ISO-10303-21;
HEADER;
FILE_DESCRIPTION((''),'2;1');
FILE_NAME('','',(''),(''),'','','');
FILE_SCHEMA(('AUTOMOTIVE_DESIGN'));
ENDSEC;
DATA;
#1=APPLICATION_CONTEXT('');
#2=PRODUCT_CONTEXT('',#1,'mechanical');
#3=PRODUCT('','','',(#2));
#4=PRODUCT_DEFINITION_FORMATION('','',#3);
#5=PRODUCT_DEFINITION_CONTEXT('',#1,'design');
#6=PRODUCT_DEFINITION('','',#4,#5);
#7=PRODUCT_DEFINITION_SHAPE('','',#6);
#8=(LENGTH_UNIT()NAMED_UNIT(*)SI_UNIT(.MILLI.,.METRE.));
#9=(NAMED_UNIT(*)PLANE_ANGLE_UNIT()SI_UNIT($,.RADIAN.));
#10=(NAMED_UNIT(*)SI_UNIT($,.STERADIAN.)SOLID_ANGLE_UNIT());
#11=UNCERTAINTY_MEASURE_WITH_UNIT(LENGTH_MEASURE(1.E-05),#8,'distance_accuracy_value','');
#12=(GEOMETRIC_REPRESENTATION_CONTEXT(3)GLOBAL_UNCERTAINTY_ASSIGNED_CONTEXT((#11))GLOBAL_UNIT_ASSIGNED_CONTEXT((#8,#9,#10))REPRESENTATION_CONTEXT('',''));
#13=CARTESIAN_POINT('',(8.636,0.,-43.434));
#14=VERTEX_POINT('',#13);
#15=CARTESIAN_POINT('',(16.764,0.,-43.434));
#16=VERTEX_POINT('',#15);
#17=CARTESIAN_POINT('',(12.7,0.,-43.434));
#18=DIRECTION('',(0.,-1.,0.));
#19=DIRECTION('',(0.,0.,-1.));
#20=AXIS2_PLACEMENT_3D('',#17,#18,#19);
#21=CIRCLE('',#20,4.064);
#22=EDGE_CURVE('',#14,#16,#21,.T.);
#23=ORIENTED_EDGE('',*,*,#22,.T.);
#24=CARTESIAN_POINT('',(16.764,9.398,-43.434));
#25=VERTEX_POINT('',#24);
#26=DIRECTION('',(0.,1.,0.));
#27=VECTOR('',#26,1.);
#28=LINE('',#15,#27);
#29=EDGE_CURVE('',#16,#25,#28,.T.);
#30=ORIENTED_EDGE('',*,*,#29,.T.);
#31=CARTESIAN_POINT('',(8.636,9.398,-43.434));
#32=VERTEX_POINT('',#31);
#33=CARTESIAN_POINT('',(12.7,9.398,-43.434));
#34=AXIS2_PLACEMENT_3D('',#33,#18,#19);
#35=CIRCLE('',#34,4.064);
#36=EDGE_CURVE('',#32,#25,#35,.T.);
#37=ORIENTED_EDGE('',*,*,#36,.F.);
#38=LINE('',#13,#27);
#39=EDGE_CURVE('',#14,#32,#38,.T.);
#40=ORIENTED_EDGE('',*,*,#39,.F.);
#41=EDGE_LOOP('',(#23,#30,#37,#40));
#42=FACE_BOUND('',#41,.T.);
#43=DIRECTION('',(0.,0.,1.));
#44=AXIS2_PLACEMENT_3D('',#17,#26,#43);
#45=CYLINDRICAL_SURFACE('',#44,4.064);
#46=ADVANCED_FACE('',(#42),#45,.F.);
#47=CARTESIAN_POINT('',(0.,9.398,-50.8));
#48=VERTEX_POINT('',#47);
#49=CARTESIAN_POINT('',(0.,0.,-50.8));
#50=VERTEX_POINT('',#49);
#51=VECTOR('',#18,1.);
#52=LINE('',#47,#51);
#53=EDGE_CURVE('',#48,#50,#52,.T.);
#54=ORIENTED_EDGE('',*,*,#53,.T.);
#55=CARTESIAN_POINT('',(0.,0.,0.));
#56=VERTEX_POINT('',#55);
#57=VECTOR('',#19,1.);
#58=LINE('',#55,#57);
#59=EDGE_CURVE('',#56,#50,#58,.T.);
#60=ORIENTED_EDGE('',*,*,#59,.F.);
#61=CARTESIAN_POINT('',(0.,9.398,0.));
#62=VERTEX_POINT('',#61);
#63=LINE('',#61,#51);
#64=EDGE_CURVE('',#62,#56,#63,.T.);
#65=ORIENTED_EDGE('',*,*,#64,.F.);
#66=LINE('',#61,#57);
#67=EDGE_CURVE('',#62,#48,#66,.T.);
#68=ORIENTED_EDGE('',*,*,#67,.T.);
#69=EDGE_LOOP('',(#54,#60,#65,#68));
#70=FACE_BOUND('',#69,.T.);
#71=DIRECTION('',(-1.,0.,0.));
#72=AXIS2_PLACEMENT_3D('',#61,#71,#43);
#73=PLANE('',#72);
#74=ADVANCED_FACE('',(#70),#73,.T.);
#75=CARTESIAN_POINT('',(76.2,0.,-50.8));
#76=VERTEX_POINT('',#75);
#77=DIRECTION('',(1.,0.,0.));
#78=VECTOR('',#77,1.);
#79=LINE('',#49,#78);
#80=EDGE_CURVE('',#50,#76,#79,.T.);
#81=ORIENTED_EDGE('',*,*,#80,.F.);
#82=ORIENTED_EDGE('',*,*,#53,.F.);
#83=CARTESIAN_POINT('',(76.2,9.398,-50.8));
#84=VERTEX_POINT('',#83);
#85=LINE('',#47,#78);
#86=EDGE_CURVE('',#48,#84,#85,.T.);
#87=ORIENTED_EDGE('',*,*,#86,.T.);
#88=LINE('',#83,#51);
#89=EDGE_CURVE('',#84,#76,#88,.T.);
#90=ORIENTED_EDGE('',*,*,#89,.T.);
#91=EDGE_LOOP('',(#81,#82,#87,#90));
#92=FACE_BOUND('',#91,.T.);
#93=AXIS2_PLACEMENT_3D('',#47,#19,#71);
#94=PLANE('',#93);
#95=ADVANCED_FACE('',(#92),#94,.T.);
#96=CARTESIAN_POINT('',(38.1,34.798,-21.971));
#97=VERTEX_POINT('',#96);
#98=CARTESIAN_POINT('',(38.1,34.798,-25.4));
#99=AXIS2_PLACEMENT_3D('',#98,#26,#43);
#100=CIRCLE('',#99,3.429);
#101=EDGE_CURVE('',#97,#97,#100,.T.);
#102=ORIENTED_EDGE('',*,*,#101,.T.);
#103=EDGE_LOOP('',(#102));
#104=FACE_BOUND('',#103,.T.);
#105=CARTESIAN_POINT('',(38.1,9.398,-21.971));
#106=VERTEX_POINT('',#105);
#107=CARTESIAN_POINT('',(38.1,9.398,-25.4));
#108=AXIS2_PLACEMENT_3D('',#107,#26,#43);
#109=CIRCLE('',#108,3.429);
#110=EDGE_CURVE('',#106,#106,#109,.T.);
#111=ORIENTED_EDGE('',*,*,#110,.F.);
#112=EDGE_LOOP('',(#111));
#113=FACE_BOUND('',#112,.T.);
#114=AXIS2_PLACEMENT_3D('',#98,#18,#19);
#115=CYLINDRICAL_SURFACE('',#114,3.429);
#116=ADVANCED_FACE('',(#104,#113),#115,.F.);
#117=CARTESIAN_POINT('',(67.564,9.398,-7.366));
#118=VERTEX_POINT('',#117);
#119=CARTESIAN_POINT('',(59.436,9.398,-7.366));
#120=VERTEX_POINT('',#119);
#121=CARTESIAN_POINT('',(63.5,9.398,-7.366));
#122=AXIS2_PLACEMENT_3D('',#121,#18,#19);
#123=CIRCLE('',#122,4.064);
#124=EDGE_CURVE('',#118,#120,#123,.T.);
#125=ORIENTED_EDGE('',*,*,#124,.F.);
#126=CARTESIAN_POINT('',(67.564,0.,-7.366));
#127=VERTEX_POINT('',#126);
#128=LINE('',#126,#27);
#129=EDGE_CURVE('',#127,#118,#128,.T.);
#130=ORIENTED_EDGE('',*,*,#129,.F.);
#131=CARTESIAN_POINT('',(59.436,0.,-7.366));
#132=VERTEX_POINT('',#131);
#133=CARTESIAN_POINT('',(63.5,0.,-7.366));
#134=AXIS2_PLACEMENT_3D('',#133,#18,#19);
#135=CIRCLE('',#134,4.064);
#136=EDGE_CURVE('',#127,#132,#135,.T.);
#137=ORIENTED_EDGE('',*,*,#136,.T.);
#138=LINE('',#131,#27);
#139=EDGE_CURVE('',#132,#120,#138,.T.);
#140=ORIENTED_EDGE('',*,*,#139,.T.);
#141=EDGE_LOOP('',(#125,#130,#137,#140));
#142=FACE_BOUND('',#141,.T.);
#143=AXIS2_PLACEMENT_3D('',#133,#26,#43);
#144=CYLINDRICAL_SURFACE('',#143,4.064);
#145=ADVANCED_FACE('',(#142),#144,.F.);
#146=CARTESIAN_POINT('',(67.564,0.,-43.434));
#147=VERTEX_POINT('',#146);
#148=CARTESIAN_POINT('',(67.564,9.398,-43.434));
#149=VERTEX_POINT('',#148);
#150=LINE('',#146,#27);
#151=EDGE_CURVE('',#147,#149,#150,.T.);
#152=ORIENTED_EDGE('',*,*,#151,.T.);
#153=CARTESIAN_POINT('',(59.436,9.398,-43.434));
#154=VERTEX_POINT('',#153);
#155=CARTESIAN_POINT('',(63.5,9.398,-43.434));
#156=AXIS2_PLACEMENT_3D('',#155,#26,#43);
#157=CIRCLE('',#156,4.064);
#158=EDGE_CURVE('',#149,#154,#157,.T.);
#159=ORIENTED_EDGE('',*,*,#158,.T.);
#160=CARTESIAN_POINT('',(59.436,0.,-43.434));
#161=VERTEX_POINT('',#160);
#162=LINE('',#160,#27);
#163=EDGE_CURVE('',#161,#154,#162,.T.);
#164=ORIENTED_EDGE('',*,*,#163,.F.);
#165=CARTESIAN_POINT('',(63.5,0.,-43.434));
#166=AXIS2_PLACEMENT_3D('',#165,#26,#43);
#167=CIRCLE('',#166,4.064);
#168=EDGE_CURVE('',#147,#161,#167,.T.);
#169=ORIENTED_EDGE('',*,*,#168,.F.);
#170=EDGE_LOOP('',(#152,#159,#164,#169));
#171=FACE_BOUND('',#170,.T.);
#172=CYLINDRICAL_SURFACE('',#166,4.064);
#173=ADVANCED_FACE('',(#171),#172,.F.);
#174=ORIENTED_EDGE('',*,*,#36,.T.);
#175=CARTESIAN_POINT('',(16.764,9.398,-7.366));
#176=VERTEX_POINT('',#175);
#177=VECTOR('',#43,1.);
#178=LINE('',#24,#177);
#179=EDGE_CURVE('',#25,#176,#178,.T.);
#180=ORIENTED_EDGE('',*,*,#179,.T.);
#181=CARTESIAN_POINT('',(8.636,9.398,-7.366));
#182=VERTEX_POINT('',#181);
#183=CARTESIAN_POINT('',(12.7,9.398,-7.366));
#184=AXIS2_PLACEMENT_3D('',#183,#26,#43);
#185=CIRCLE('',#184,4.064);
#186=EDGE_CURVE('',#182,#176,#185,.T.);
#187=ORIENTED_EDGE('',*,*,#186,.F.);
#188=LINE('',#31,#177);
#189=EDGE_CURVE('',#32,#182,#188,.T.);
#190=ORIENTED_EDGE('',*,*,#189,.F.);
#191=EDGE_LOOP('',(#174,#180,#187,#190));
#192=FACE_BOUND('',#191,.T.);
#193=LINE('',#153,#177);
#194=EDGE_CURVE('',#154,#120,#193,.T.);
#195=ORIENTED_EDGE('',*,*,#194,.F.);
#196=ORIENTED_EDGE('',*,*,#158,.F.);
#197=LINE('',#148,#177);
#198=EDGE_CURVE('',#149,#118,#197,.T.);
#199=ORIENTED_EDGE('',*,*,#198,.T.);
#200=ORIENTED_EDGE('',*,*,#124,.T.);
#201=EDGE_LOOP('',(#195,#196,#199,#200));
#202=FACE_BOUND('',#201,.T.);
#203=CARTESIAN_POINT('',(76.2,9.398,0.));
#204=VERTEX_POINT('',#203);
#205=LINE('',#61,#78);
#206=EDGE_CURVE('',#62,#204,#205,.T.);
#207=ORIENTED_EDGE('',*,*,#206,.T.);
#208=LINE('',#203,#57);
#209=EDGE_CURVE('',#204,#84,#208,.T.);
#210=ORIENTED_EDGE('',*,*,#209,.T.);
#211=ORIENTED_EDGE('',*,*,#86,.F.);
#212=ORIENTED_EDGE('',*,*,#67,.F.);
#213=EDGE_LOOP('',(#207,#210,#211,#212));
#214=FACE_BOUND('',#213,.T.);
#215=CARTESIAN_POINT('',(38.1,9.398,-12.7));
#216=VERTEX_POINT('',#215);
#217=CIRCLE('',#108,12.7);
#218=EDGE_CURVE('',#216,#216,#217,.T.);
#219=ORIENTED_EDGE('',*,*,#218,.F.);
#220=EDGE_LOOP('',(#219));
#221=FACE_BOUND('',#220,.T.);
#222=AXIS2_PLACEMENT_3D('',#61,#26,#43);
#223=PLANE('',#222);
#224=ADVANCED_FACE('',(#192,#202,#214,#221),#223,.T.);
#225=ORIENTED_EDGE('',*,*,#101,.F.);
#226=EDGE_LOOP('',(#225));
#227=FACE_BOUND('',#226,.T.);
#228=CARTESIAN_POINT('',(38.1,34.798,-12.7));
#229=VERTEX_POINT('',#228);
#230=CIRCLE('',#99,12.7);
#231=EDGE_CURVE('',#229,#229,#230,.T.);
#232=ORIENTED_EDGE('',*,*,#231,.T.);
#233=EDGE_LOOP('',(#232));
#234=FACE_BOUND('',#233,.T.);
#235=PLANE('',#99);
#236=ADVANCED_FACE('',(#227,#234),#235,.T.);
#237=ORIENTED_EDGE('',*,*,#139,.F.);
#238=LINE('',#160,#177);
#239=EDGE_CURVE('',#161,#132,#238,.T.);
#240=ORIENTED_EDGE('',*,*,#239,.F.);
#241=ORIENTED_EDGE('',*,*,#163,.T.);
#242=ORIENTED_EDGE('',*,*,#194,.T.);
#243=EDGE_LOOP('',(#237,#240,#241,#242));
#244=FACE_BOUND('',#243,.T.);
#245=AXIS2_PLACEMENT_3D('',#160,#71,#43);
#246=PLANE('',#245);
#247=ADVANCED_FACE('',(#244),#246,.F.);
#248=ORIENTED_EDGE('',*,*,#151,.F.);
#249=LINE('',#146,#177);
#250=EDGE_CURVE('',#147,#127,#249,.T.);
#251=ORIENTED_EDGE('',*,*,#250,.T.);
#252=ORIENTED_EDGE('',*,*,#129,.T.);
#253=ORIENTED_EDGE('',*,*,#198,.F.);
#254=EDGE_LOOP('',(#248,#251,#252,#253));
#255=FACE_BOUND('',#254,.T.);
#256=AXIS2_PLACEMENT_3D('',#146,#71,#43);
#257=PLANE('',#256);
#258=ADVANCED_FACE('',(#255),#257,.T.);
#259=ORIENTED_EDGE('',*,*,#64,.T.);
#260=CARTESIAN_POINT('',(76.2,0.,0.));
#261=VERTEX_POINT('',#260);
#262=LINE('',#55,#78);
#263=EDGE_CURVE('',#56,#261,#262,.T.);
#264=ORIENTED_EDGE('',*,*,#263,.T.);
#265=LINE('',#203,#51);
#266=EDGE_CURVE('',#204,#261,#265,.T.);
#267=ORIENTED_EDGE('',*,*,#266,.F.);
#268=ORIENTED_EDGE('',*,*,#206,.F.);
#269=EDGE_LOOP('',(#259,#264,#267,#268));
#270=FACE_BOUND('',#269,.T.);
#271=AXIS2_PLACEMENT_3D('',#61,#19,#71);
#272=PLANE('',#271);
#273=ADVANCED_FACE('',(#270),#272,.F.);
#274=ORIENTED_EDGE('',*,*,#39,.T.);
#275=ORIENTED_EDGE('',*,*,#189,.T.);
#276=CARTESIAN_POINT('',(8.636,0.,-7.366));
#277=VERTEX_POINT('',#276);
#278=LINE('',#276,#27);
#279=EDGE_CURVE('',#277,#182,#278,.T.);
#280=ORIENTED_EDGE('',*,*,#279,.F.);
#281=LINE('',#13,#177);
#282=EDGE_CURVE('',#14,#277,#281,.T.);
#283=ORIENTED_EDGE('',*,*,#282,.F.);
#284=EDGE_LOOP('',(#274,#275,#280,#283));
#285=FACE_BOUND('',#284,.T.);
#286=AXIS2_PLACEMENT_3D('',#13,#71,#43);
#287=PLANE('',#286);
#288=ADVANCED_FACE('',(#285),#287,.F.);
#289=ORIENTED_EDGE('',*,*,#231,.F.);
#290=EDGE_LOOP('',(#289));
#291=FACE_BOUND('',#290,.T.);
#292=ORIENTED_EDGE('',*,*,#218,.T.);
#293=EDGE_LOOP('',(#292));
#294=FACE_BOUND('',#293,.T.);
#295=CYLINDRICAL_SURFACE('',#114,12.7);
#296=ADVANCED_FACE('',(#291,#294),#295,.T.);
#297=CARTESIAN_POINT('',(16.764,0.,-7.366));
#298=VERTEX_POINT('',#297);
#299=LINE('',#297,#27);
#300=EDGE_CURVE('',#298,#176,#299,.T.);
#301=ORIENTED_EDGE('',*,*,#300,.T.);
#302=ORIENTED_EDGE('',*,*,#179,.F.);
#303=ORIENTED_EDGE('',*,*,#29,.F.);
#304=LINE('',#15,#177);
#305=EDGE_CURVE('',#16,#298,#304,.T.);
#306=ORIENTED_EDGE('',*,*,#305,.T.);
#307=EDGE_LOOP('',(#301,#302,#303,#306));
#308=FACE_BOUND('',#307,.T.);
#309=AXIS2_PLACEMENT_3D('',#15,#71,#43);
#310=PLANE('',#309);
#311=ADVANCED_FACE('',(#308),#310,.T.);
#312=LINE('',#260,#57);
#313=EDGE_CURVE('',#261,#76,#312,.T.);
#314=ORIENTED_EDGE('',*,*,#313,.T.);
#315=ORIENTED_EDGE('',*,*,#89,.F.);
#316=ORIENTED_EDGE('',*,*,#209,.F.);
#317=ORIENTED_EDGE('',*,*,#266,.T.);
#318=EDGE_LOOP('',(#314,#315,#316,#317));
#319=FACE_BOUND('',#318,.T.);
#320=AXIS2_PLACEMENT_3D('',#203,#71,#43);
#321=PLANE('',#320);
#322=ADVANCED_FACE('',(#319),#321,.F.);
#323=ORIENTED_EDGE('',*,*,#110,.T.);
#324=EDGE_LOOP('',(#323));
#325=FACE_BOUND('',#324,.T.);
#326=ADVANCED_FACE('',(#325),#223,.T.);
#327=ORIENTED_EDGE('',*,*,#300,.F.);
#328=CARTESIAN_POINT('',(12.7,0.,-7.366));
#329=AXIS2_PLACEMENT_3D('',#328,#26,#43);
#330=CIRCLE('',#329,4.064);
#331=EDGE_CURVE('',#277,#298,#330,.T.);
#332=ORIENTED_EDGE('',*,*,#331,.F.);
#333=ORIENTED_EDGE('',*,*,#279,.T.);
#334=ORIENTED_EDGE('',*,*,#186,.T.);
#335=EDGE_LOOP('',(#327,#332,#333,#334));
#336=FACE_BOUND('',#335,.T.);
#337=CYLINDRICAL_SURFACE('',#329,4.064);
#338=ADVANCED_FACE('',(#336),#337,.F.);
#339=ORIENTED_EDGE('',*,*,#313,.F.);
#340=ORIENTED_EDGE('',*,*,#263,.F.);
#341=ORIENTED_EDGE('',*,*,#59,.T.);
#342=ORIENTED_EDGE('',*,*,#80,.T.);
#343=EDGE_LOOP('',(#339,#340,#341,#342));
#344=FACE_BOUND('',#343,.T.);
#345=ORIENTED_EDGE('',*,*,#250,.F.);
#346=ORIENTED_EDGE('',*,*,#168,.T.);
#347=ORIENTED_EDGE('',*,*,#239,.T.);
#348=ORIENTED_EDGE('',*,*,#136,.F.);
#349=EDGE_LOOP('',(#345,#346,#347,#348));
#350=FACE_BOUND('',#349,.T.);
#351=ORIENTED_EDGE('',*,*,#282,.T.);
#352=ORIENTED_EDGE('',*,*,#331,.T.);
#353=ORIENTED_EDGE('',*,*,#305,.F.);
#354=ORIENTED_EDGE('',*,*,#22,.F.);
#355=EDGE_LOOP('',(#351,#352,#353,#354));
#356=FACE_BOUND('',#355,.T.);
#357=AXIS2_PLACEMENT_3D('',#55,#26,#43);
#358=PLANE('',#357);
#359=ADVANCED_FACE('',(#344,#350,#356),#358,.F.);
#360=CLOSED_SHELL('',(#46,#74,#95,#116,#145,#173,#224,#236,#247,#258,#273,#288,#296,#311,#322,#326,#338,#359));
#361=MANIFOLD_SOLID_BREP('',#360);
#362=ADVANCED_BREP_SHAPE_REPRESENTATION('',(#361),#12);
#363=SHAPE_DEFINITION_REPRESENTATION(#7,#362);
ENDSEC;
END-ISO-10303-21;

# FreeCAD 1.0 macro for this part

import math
import FreeCAD as App
import Part
import Sketcher
from FreeCAD import Vector
Q = App.Units.Quantity

doc = App.newDocument("Part")
body = doc.addObject("PartDesign::Body", "Body")

sketch1 = doc.addObject("Sketcher::SketchObject", "Sketch")
body.addObject(sketch1)
sketch1.AttachmentSupport = (doc.XZ_Plane, [""])
sketch1.MapMode = "FlatFace"
sketch1.addGeometry(Part.LineSegment(Vector(0, -51, 0), Vector(0, 0, 0)), False)
sketch1.addGeometry(Part.LineSegment(Vector(0, 0, 0), Vector(76, 0, 0)), False)
sketch1.addGeometry(Part.LineSegment(Vector(76, 0, 0), Vector(76, -51, 0)), False)
sketch1.addGeometry(Part.LineSegment(Vector(76, -51, 0), Vector(0, -51, 0)), False)
sketch1.addConstraint(Sketcher.Constraint("Coincident", 0, 2, 1, 1))
sketch1.addConstraint(Sketcher.Constraint("Coincident", 1, 2, 2, 1))
sketch1.addConstraint(Sketcher.Constraint("Coincident", 2, 2, 3, 1))
sketch1.addConstraint(Sketcher.Constraint("Coincident", 3, 2, 0, 1))
sketch1.addConstraint(Sketcher.Constraint("Vertical", 0))
sketch1.addConstraint(Sketcher.Constraint("Horizontal", 1))
sketch1.addConstraint(Sketcher.Constraint("Vertical", 2))
sketch1.addConstraint(Sketcher.Constraint("Horizontal", 3))
sketch1.addConstraint(Sketcher.Constraint("Coincident", 0, 2, -1, 1))
sketch1.addConstraint(Sketcher.Constraint("DistanceX", 1, 1, 1, 2, Q("3 in")))
sketch1.addConstraint(Sketcher.Constraint("DistanceY", 0, 1, 0, 2, Q("2 in")))
pad1 = doc.addObject("PartDesign::Pad", "Pad")
body.addObject(pad1)
pad1.Profile = sketch1
pad1.Length = Q("0.37 in")
pad1.Reversed = True

sketch2 = doc.addObject("Sketcher::SketchObject", "Sketch001")
body.addObject(sketch2)
sketch2.AttachmentSupport = (doc.XZ_Plane, [""])
sketch2.MapMode = "FlatFace"
sketch2.AttachmentOffset = App.Placement(Vector(0, 0, -0.37 * 25.4), App.Rotation())
sketch2.addGeometry(Part.LineSegment(Vector(8.6, -43.4, 0), Vector(8.6, -7.4, 0)), False)
sketch2.addGeometry(Part.ArcOfCircle(Part.Circle(Vector(12.7, -7.4, 0), Vector(0, 0, 1), 4.1), math.radians(0), math.radians(180)), False)
sketch2.addGeometry(Part.LineSegment(Vector(16.8, -7.4, 0), Vector(16.8, -43.4, 0)), False)
sketch2.addGeometry(Part.ArcOfCircle(Part.Circle(Vector(12.7, -43.4, 0), Vector(0, 0, 1), 4.1), math.radians(180), math.radians(360)), False)
sketch2.addGeometry(Part.LineSegment(Vector(67.6, -7.4, 0), Vector(67.6, -43.4, 0)), False)
sketch2.addGeometry(Part.ArcOfCircle(Part.Circle(Vector(63.5, -43.4, 0), Vector(0, 0, 1), 4.1), math.radians(180), math.radians(360)), False)
sketch2.addGeometry(Part.LineSegment(Vector(59.4, -43.4, 0), Vector(59.4, -7.4, 0)), False)
sketch2.addGeometry(Part.ArcOfCircle(Part.Circle(Vector(63.5, -7.4, 0), Vector(0, 0, 1), 4.1), math.radians(0), math.radians(180)), False)
sketch2.addConstraint(Sketcher.Constraint("Tangent", 0, 2, 1, 2))
sketch2.addConstraint(Sketcher.Constraint("Tangent", 1, 1, 2, 1))
sketch2.addConstraint(Sketcher.Constraint("Tangent", 2, 2, 3, 2))
sketch2.addConstraint(Sketcher.Constraint("Tangent", 3, 1, 0, 1))
sketch2.addConstraint(Sketcher.Constraint("Tangent", 4, 2, 5, 2))
sketch2.addConstraint(Sketcher.Constraint("Tangent", 5, 1, 6, 1))
sketch2.addConstraint(Sketcher.Constraint("Tangent", 6, 2, 7, 2))
sketch2.addConstraint(Sketcher.Constraint("Tangent", 7, 1, 4, 1))
sketch2.addConstraint(Sketcher.Constraint("Vertical", 0))
sketch2.addConstraint(Sketcher.Constraint("Vertical", 2))
sketch2.addConstraint(Sketcher.Constraint("Vertical", 4))
sketch2.addConstraint(Sketcher.Constraint("Vertical", 6))
sketch2.addConstraint(Sketcher.Constraint("Equal", 3, 5))
sketch2.addConstraint(Sketcher.Constraint("Horizontal", 3, 3, 5, 3))
sketch2.addConstraint(Sketcher.Constraint("Horizontal", 1, 3, 7, 3))
sketch2.addConstraint(Sketcher.Constraint("Radius", 1, Q("0.16 in")))
sketch2.addConstraint(Sketcher.Constraint("DistanceX", 3, 3, 5, 3, Q("2 in")))
sketch2.addConstraint(Sketcher.Constraint("DistanceY", 0, 1, 0, 2, Q("1.42 in")))
sketch2.addConstraint(Sketcher.Constraint("DistanceX", -1, 1, 1, 3, Q("0.5 in")))
sketch2.addConstraint(Sketcher.Constraint("DistanceY", 1, 3, -1, 1, Q("0.29 in")))
pocket1 = doc.addObject("PartDesign::Pocket", "Pocket")
body.addObject(pocket1)
pocket1.Profile = sketch2
pocket1.Length = Q("0.37 in")
pocket1.Reversed = True

sketch3 = doc.addObject("Sketcher::SketchObject", "Sketch002")
body.addObject(sketch3)
sketch3.AttachmentSupport = (doc.XZ_Plane, [""])
sketch3.MapMode = "FlatFace"
sketch3.AttachmentOffset = App.Placement(Vector(0, 0, -0.37 * 25.4), App.Rotation())
sketch3.addGeometry(Part.Circle(Vector(38.1, -25.4, 0), Vector(0, 0, 1), 12.7), False)
sketch3.addGeometry(Part.Circle(Vector(38.1, -25.4, 0), Vector(0, 0, 1), 3.4), False)
sketch3.addConstraint(Sketcher.Constraint("Coincident", 1, 3, 0, 3))
sketch3.addConstraint(Sketcher.Constraint("Diameter", 0, Q("1 in")))
sketch3.addConstraint(Sketcher.Constraint("Diameter", 1, Q("0.27 in")))
sketch3.addConstraint(Sketcher.Constraint("DistanceY", 0, 3, -1, 1, Q("1 in")))
sketch3.addConstraint(Sketcher.Constraint("DistanceX", -1, 1, 0, 3, Q("1.5 in")))
pad2 = doc.addObject("PartDesign::Pad", "Pad001")
body.addObject(pad2)
pad2.Profile = sketch3
pad2.Length = Q("1 in")
pad2.Reversed = True

doc.recompute()
